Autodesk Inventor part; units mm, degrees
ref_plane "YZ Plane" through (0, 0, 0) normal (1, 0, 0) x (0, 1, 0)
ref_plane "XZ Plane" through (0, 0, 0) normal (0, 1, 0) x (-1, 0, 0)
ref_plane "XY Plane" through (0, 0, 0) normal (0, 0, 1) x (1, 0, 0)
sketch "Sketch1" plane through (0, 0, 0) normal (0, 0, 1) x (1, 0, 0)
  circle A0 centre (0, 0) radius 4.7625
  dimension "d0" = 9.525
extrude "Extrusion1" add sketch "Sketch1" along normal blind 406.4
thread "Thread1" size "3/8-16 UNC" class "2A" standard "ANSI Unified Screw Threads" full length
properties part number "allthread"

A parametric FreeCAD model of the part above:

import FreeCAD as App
import Part
import Sketcher
Q = App.Units.Quantity

doc = App.newDocument("Part")
body = doc.addObject("PartDesign::Body", "Body")

# Sketch on XY plane
sketch1 = body.newObject("Sketcher::SketchObject", "Sketch")
sketch1.AttachmentSupport = (doc.getObject("XY_Plane"), [""])
sketch1.MapMode = "FlatFace"
sketch1.addGeometry(Part.Circle(App.Vector(0, 0, 0), App.Vector(0, 0, 1), 4.7625), False)
sketch1.addConstraint([
    Sketcher.Constraint("Coincident", 0, 3, -1, 1),
    Sketcher.Constraint("Diameter", 0, Q("0.375 in")),
])
pad1 = body.newObject("PartDesign::Pad", "Pad")
pad1.Profile = sketch1
pad1.Length = Q("16 in")

doc.recompute()
